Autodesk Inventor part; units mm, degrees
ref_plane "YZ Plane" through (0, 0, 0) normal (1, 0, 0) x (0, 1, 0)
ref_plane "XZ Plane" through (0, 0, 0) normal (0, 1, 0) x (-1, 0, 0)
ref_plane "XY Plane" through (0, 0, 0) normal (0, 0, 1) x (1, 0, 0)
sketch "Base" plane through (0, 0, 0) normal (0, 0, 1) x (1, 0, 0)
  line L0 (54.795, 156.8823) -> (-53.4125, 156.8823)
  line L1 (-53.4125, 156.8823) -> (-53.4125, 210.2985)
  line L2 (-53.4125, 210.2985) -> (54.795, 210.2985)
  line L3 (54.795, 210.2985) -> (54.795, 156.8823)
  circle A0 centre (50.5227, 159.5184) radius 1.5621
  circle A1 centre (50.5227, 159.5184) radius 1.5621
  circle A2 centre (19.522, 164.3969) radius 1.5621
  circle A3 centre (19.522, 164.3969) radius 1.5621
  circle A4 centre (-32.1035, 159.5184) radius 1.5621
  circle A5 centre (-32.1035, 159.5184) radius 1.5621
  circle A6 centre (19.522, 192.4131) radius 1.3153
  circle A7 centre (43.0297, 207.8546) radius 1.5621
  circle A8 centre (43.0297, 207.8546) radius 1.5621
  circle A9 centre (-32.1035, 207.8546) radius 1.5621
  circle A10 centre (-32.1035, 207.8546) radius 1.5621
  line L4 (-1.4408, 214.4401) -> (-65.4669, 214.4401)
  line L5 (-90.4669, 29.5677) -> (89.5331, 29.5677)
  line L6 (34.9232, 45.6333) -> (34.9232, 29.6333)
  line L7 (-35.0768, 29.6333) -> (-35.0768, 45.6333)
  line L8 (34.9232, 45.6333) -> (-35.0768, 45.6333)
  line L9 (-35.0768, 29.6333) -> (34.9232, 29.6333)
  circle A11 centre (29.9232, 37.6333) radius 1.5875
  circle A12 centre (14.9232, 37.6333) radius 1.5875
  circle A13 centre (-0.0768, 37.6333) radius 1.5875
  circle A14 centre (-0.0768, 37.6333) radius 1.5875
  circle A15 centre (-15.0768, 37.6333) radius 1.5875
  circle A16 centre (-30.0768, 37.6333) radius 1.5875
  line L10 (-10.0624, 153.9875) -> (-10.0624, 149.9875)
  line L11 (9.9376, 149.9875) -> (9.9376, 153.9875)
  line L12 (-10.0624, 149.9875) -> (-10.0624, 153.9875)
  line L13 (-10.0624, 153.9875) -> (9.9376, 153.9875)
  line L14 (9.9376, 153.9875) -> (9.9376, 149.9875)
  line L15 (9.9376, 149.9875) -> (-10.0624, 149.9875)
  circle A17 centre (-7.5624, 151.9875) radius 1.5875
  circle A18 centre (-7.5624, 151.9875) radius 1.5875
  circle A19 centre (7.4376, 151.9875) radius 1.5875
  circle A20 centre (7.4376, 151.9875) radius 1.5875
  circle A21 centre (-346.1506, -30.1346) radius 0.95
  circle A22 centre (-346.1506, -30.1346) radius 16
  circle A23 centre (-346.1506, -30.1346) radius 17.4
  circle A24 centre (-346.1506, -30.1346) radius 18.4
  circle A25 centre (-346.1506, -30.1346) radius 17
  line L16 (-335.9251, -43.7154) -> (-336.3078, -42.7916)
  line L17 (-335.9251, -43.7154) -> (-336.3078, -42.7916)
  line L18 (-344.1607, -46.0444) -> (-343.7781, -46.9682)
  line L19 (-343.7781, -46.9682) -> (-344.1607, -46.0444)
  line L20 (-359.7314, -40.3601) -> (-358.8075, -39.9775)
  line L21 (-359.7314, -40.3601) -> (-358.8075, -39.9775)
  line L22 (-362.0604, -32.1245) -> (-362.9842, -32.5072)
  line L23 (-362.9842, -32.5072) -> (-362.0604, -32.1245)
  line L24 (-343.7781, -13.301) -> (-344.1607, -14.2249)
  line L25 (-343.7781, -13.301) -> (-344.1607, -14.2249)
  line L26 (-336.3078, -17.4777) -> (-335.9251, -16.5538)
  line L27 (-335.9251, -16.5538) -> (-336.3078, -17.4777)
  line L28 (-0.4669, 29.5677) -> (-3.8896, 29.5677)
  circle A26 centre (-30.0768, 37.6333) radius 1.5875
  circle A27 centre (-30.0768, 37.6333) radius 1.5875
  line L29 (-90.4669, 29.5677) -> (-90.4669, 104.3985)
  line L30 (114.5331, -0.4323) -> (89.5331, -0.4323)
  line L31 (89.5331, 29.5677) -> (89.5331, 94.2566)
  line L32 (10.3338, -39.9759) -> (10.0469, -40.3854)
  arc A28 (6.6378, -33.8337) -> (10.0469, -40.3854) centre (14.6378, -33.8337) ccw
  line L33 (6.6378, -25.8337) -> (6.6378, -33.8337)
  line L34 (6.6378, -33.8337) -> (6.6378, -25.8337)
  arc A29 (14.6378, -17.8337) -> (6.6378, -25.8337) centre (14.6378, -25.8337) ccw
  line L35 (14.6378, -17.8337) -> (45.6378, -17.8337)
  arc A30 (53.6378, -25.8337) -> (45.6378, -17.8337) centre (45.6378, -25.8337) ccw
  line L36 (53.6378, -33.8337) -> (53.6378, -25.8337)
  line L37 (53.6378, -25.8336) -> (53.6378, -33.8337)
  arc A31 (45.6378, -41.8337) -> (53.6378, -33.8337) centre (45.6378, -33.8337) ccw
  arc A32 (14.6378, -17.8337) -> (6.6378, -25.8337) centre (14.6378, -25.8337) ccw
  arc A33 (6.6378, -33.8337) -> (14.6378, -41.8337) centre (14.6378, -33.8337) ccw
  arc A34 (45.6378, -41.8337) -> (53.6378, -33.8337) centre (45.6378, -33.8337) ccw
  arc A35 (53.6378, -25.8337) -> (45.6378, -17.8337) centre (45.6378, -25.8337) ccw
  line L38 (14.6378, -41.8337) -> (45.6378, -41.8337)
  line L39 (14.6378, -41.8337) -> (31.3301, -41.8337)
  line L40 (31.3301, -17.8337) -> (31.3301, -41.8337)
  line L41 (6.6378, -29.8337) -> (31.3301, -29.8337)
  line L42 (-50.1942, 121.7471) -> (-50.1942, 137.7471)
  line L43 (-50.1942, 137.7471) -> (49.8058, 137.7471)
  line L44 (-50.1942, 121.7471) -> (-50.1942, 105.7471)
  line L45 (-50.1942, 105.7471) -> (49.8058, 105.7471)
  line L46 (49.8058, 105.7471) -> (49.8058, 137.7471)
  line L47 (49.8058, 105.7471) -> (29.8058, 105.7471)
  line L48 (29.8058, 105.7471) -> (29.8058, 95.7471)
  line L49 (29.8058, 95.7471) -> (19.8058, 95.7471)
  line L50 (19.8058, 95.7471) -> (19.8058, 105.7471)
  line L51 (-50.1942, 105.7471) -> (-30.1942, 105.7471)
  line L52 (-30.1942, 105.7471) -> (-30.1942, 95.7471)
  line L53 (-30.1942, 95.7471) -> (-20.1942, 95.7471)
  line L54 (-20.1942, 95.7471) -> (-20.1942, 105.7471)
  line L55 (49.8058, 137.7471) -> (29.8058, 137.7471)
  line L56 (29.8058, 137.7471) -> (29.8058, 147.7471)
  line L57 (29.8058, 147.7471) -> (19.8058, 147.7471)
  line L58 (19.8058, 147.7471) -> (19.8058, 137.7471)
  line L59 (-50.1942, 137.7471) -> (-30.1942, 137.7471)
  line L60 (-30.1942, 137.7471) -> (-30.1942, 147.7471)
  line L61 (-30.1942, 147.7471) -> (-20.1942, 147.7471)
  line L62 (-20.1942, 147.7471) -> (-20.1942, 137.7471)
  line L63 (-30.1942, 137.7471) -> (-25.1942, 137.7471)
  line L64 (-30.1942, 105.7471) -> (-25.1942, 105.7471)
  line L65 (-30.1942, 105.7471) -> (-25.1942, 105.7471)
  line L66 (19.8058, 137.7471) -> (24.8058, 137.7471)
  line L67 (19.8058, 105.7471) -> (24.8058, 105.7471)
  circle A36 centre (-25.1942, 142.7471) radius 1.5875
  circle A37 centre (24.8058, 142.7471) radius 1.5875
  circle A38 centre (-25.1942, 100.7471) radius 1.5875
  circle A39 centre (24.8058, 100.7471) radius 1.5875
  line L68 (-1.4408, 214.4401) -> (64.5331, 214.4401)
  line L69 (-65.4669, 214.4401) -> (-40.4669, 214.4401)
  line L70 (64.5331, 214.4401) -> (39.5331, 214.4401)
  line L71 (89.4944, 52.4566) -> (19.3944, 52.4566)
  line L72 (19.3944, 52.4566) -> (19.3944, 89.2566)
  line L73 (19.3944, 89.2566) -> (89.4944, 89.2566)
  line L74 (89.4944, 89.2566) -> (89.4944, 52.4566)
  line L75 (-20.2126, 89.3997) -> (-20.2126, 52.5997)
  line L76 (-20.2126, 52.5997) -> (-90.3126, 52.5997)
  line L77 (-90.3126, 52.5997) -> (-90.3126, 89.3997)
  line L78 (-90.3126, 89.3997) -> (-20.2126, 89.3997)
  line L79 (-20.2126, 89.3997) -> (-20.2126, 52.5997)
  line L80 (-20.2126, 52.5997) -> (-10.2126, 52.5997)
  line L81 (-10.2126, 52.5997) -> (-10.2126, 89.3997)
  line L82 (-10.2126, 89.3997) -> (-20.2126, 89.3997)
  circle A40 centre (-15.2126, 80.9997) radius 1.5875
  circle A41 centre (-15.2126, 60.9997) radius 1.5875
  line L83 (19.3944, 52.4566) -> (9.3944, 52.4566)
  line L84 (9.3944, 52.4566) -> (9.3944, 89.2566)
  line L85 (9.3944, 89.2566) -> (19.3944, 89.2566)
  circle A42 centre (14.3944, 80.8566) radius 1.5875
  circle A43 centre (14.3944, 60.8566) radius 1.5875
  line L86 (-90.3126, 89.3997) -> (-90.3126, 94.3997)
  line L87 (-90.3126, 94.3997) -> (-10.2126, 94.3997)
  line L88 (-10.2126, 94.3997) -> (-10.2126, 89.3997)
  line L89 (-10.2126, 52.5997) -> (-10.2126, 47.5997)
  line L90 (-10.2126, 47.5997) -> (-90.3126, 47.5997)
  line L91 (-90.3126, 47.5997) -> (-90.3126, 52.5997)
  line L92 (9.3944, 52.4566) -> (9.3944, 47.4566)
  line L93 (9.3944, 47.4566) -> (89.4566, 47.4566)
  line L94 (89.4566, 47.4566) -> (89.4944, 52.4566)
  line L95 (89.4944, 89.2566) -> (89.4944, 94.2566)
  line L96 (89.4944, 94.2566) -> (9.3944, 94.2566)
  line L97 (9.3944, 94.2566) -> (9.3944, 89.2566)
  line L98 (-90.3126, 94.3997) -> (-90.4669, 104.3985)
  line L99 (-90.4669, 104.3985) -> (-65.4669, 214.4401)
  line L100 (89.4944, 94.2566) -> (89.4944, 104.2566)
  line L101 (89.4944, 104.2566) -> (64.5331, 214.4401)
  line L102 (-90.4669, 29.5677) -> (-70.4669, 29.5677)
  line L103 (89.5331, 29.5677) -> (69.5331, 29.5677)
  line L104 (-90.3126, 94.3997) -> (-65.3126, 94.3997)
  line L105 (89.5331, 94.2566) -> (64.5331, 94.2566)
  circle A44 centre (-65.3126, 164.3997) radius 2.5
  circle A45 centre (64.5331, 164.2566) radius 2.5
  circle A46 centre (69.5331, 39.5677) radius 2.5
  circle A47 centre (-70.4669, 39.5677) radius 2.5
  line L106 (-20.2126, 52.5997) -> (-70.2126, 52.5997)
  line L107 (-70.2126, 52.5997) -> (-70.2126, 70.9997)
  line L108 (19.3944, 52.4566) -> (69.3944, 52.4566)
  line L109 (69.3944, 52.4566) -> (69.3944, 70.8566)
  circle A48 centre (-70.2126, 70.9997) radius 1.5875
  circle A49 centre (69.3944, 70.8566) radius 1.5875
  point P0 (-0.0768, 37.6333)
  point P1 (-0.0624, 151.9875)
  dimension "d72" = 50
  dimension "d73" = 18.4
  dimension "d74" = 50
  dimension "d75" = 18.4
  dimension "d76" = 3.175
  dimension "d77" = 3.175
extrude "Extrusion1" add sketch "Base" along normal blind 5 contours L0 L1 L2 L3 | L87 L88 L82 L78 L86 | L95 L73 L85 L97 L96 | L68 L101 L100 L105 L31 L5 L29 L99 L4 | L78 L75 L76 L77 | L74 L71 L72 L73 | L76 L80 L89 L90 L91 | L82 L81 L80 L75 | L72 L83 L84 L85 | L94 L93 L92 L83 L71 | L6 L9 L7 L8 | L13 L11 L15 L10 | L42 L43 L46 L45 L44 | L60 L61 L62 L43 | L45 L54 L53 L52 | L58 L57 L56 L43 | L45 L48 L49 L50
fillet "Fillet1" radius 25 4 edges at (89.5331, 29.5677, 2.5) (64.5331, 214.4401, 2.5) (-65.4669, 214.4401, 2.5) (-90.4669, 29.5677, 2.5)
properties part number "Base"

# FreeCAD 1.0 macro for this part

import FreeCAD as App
import Part
import Sketcher
from FreeCAD import Vector
Q = App.Units.Quantity


def edges_at(feature, points):
    """Names of the edges that pass closest to the given points."""
    edges = feature.Shape.Edges
    near = lambda p: min(range(len(edges)), key=lambda i: edges[i].distToShape(Part.Vertex(*p))[0])
    return sorted({f"Edge{near(p) + 1}" for p in points})


def add_polygon(sketch, points):
    """Adds a closed chain of lines whose ends are joined by coincident constraints."""
    first, n = sketch.GeometryCount, len(points)
    for a, b in zip(points, points[1:] + points[:1]):
        sketch.addGeometry(Part.LineSegment(App.Vector(*a, 0), App.Vector(*b, 0)), False)
    for i in range(n):
        sketch.addConstraint(Sketcher.Constraint("Coincident", first + i, 2, first + (i + 1) % n, 1))

doc = App.newDocument("Part")
body = doc.addObject("PartDesign::Body", "Body")

# Sketch on XY plane
sketch1 = body.newObject("Sketcher::SketchObject", "Sketch")
sketch1.AttachmentSupport = (doc.getObject("XY_Plane"), [""])
sketch1.MapMode = "FlatFace"
add_polygon(sketch1, [(-65.467, 214.44), (-90.467, 104.398), (-90.467, 29.568), (89.533, 29.568), (89.533, 94.257), (89.494, 94.257), (89.494, 104.257), (64.533, 214.44)])  # lines 0-7
sketch1.addGeometry(Part.Circle(Vector(-32.103, 159.518, 0), Vector(0, 0, 1), 1.562), False)  # 8
sketch1.addGeometry(Part.Circle(Vector(-32.103, 207.855, 0), Vector(0, 0, 1), 1.562), False)  # 9
sketch1.addGeometry(Part.Circle(Vector(19.522, 164.397, 0), Vector(0, 0, 1), 1.562), False)  # 10
sketch1.addGeometry(Part.Circle(Vector(50.523, 159.518, 0), Vector(0, 0, 1), 1.562), False)  # 11
sketch1.addGeometry(Part.Circle(Vector(19.522, 192.413, 0), Vector(0, 0, 1), 1.315), False)  # 12
sketch1.addGeometry(Part.Circle(Vector(43.03, 207.855, 0), Vector(0, 0, 1), 1.562), False)  # 13
sketch1.addGeometry(Part.Circle(Vector(-70.467, 39.568, 0), Vector(0, 0, 1), 2.5), False)  # 14
sketch1.addGeometry(Part.Circle(Vector(69.533, 39.568, 0), Vector(0, 0, 1), 2.5), False)  # 15
sketch1.addGeometry(Part.Circle(Vector(-65.313, 164.4, 0), Vector(0, 0, 1), 2.5), False)  # 16
sketch1.addGeometry(Part.Circle(Vector(64.533, 164.257, 0), Vector(0, 0, 1), 2.5), False)  # 17
sketch1.addGeometry(Part.Circle(Vector(-70.213, 71, 0), Vector(0, 0, 1), 1.587), False)  # 18
sketch1.addGeometry(Part.Circle(Vector(-15.213, 61, 0), Vector(0, 0, 1), 1.587), False)  # 19
sketch1.addGeometry(Part.Circle(Vector(-15.213, 81, 0), Vector(0, 0, 1), 1.587), False)  # 20
sketch1.addGeometry(Part.Circle(Vector(-15.077, 37.633, 0), Vector(0, 0, 1), 1.587), False)  # 21
sketch1.addGeometry(Part.Circle(Vector(-0.077, 37.633, 0), Vector(0, 0, 1), 1.587), False)  # 22
sketch1.addGeometry(Part.Circle(Vector(14.923, 37.633, 0), Vector(0, 0, 1), 1.587), False)  # 23
sketch1.addGeometry(Part.Circle(Vector(29.923, 37.633, 0), Vector(0, 0, 1), 1.587), False)  # 24
sketch1.addGeometry(Part.Circle(Vector(-30.077, 37.633, 0), Vector(0, 0, 1), 1.587), False)  # 25
sketch1.addGeometry(Part.Circle(Vector(14.394, 80.857, 0), Vector(0, 0, 1), 1.587), False)  # 26
sketch1.addGeometry(Part.Circle(Vector(14.394, 60.857, 0), Vector(0, 0, 1), 1.587), False)  # 27
sketch1.addGeometry(Part.Circle(Vector(69.394, 70.857, 0), Vector(0, 0, 1), 1.587), False)  # 28
sketch1.addGeometry(Part.Circle(Vector(-25.194, 100.747, 0), Vector(0, 0, 1), 1.587), False)  # 29
sketch1.addGeometry(Part.Circle(Vector(24.806, 100.747, 0), Vector(0, 0, 1), 1.587), False)  # 30
sketch1.addGeometry(Part.Circle(Vector(24.806, 142.747, 0), Vector(0, 0, 1), 1.587), False)  # 31
sketch1.addGeometry(Part.Circle(Vector(-25.194, 142.747, 0), Vector(0, 0, 1), 1.587), False)  # 32
sketch1.addGeometry(Part.Circle(Vector(-7.562, 151.988, 0), Vector(0, 0, 1), 1.587), False)  # 33
sketch1.addGeometry(Part.Circle(Vector(7.438, 151.988, 0), Vector(0, 0, 1), 1.587), False)  # 34
sketch1.addConstraint([
    Sketcher.Constraint("Vertical", 1),
    Sketcher.Constraint("Horizontal", 2),
    Sketcher.Constraint("Vertical", 3),
    Sketcher.Constraint("Horizontal", 4),
    Sketcher.Constraint("Vertical", 5),
    Sketcher.Constraint("Horizontal", 7),
    Sketcher.Constraint("Equal", 8, 9),
    Sketcher.Constraint("Equal", 9, 10),
    Sketcher.Constraint("Equal", 10, 11),
    Sketcher.Constraint("Equal", 11, 13),
    Sketcher.Constraint("Equal", 14, 15),
    Sketcher.Constraint("Equal", 15, 16),
    Sketcher.Constraint("Equal", 16, 17),
    Sketcher.Constraint("Equal", 18, 19),
    Sketcher.Constraint("Equal", 19, 20),
    Sketcher.Constraint("Equal", 20, 21),
    Sketcher.Constraint("Equal", 21, 22),
    Sketcher.Constraint("Equal", 22, 23),
    Sketcher.Constraint("Equal", 23, 24),
    Sketcher.Constraint("Equal", 24, 25),
    Sketcher.Constraint("Equal", 25, 26),
    Sketcher.Constraint("Equal", 26, 27),
    Sketcher.Constraint("Equal", 27, 28),
    Sketcher.Constraint("Equal", 28, 29),
    Sketcher.Constraint("Equal", 29, 30),
    Sketcher.Constraint("Equal", 30, 31),
    Sketcher.Constraint("Equal", 31, 32),
    Sketcher.Constraint("Equal", 32, 33),
    Sketcher.Constraint("Equal", 33, 34),
    Sketcher.Constraint("Horizontal", 8, 3, 11, 3),
    Sketcher.Constraint("Horizontal", 9, 3, 13, 3),
    Sketcher.Constraint("Horizontal", 14, 3, 15, 3),
    Sketcher.Constraint("Horizontal", 21, 3, 22, 3),
    Sketcher.Constraint("Horizontal", 22, 3, 23, 3),
    Sketcher.Constraint("Horizontal", 23, 3, 24, 3),
    Sketcher.Constraint("Horizontal", 24, 3, 25, 3),
    Sketcher.Constraint("Horizontal", 29, 3, 30, 3),
    Sketcher.Constraint("Horizontal", 31, 3, 32, 3),
    Sketcher.Constraint("Horizontal", 33, 3, 34, 3),
    Sketcher.Constraint("Vertical", 8, 3, 9, 3),
    Sketcher.Constraint("Vertical", 10, 3, 12, 3),
    Sketcher.Constraint("Vertical", 19, 3, 20, 3),
    Sketcher.Constraint("Vertical", 26, 3, 27, 3),
    Sketcher.Constraint("Vertical", 30, 3, 31, 3),
    Sketcher.Constraint("Vertical", 29, 3, 32, 3),
    Sketcher.Constraint("Vertical", 17, 3, 6, 2),
    Sketcher.Constraint("Diameter", 14, 5.0),
    Sketcher.Constraint("Diameter", 18, 3.175),
    Sketcher.Constraint("DistanceX", 29, 3, 30, 3, 50.0),
    Sketcher.Constraint("DistanceX", 2, 1, 2, 2, 180.0),
    Sketcher.Constraint("DistanceX", 7, 2, 7, 1, 130.0),
    Sketcher.Constraint("DistanceY", 5, 1, 5, 2, 10.0),
    Sketcher.Constraint("Angle", 0, Q("-102.7996 deg")),
    Sketcher.Constraint("DistanceX", 14, 3, 15, 3, 140.0),
    Sketcher.Constraint("DistanceX", 18, 3, 19, 3, 55.0),
    Sketcher.Constraint("DistanceY", 19, 3, 18, 3, 10.0),
    Sketcher.Constraint("DistanceY", 19, 3, 20, 3, 20.0),
    Sketcher.Constraint("DistanceX", 21, 3, 22, 3, 15.0),
    Sketcher.Constraint("DistanceX", 22, 3, 23, 3, 15.0),
    Sketcher.Constraint("DistanceX", 23, 3, 24, 3, 15.0),
    Sketcher.Constraint("DistanceX", 25, 3, 21, 3, 15.0),
    Sketcher.Constraint("DistanceY", 27, 3, 26, 3, 20.0),
    Sketcher.Constraint("DistanceX", 26, 3, 28, 3, 55.0),
    Sketcher.Constraint("DistanceY", 28, 3, 26, 3, 10.0),
    Sketcher.Constraint("DistanceY", 30, 3, 31, 3, 42.0),
    Sketcher.Constraint("DistanceX", 33, 3, 34, 3, 15.0),
    Sketcher.Constraint("DistanceX", 0, 2, 14, 3, 20.0),
    Sketcher.Constraint("DistanceY", 1, 2, 14, 3, 10.0),
    Sketcher.Constraint("DistanceX", 17, 3, 3, 2, 25.0),
    Sketcher.Constraint("DistanceY", 3, 2, 17, 3, 70.0),
    Sketcher.Constraint("Diameter", 8, 3.1242),
    Sketcher.Constraint("Diameter", 12, 2.6306),
    Sketcher.Constraint("DistanceX", 18, 3, 16, 3, 4.9),
    Sketcher.Constraint("DistanceY", 18, 3, 16, 3, 93.4),
    Sketcher.Constraint("DistanceY", 28, 3, 3, 2, 23.4),
    Sketcher.Constraint("DistanceX", 28, 3, 4, 2, 20.1),
    Sketcher.Constraint("DistanceY", 3, 1, 3, 2, 64.689),
    Sketcher.Constraint("DistanceY", -1, 1, 6, 2, 214.44),
    Sketcher.Constraint("DistanceX", 14, 3, 21, 3, 55.39),
    Sketcher.Constraint("DistanceX", 4, 2, 4, 1, 0.0387),
    Sketcher.Constraint("DistanceY", 1, 2, 1, 1, 74.8308),
    Sketcher.Constraint("DistanceX", -1, 1, 10, 3, 19.522),
    Sketcher.Constraint("DistanceY", -1, 1, 10, 3, 164.397),
    Sketcher.Constraint("DistanceY", -1, 1, 12, 3, 192.413),
    Sketcher.Constraint("DistanceX", 14, 3, -1, 1, 70.467),
    Sketcher.Constraint("DistanceY", -1, 1, 29, 3, 100.747),
    Sketcher.Constraint("DistanceX", 13, 3, 11, 3, 7.493),
    Sketcher.Constraint("DistanceY", 14, 3, 9, 3, 168.287),
    Sketcher.Constraint("DistanceX", 16, 3, 8, 3, 33.209),
    Sketcher.Constraint("DistanceY", 16, 3, 9, 3, 43.455),
    Sketcher.Constraint("DistanceX", 20, 3, 26, 3, 29.607),
    Sketcher.Constraint("DistanceX", 31, 3, 11, 3, 25.717),
    Sketcher.Constraint("DistanceX", 8, 3, 33, 3, 24.541),
    Sketcher.Constraint("DistanceY", 33, 3, 8, 3, 7.531),
    Sketcher.Constraint("DistanceY", -1, 1, 8, 3, 159.5184),
    Sketcher.Constraint("DistanceX", -1, 1, 11, 3, 50.5227),
    Sketcher.Constraint("DistanceY", -1, 1, 21, 3, 37.6333),
])
pad1 = body.newObject("PartDesign::Pad", "Pad")
pad1.Profile = sketch1
pad1.Length = 5
doc.recompute()

fillet = body.newObject("PartDesign::Fillet", "Fillet")
fillet.Base = (pad1, edges_at(pad1, [
    (89.533, 29.568, 2.5),
    (64.533, 214.44, 2.5),
    (-65.467, 214.44, 2.5),
    (-90.467, 29.568, 2.5),
]))
fillet.Radius = 25

doc.recompute()
